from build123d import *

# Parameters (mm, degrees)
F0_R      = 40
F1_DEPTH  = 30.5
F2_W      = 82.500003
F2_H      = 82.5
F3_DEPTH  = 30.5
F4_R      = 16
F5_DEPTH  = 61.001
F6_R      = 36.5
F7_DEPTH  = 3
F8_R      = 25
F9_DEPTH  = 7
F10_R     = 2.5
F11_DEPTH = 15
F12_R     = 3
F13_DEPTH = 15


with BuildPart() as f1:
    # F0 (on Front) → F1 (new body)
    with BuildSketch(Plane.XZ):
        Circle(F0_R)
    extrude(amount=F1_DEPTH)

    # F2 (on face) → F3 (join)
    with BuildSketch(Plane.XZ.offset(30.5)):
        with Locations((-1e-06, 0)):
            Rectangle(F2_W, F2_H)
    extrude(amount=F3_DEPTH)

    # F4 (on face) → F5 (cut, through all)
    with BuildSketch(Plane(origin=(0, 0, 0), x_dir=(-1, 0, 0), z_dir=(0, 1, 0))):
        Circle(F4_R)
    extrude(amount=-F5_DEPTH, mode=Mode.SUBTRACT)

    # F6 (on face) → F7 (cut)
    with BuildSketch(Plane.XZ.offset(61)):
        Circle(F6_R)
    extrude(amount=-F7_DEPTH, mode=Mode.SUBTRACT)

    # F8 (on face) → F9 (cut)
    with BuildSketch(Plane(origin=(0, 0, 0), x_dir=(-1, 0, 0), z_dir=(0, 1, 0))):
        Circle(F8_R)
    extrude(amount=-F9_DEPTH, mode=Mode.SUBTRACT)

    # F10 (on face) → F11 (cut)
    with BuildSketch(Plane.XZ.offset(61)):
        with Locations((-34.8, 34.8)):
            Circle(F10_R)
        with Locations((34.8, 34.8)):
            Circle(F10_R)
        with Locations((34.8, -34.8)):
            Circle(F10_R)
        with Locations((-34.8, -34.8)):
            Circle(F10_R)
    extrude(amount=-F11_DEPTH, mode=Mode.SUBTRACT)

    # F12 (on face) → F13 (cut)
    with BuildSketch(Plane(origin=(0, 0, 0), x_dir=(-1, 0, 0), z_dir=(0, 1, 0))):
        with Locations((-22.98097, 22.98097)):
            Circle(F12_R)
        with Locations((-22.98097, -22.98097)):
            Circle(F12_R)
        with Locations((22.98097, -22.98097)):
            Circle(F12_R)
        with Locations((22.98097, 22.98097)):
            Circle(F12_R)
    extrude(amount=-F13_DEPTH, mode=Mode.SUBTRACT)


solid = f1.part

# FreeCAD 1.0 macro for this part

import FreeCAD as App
import Part
import Sketcher
from FreeCAD import Vector
Q = App.Units.Quantity

doc = App.newDocument("Part")
body = doc.addObject("PartDesign::Body", "Body")

sketch1 = body.newObject("Sketcher::SketchObject", "Sketch")
sketch1.AttachmentSupport = (doc.getObject("XZ_Plane"), [""])
sketch1.MapMode = "FlatFace"
sketch1.addGeometry(Part.Circle(Vector(0, 0, 0), Vector(0, 0, 1), 40), False)
sketch1.addConstraint([
    Sketcher.Constraint("Coincident", 0, 3, -1, 1),
    Sketcher.Constraint("Diameter", 0, Q("80 mm")),
])
pad1 = body.newObject("PartDesign::Pad", "Pad")
pad1.Profile = sketch1
pad1.Length = 30.5

sketch2 = body.newObject("Sketcher::SketchObject", "Sketch001")
sketch2.AttachmentSupport = (doc.getObject("XZ_Plane"), [""])
sketch2.MapMode = "FlatFace"
sketch2.AttachmentOffset = App.Placement(Vector(0, 0, 30.5), App.Rotation())
sketch2.addGeometry([
    Part.LineSegment(Vector(-41, 41, 0), Vector(-41, -41, 0)),
    Part.LineSegment(Vector(-41, -41, 0), Vector(41, -41, 0)),
    Part.LineSegment(Vector(41, -41, 0), Vector(41, 41, 0)),
    Part.LineSegment(Vector(41, 41, 0), Vector(-41, 41, 0)),
], False)
sketch2.addConstraint([
    Sketcher.Constraint("Coincident", 0, 2, 1, 1),
    Sketcher.Constraint("Coincident", 1, 2, 2, 1),
    Sketcher.Constraint("Coincident", 2, 2, 3, 1),
    Sketcher.Constraint("Coincident", 3, 2, 0, 1),
    Sketcher.Constraint("Vertical", 0),
    Sketcher.Constraint("Horizontal", 1),
    Sketcher.Constraint("Vertical", 2),
    Sketcher.Constraint("Horizontal", 3),
    Sketcher.Constraint("Symmetric", 0, 2, 2, 2, -1, 1),
    Sketcher.Constraint("DistanceY", 0, 2, 0, 1, Q("82.5 mm")),
    Sketcher.Constraint("DistanceX", 0, 2, -1, 1, Q("41.250002 mm")),
])
pad2 = body.newObject("PartDesign::Pad", "Pad001")
pad2.Profile = sketch2
pad2.Length = 30.5

sketch3 = body.newObject("Sketcher::SketchObject", "Sketch002")
sketch3.AttachmentSupport = (doc.getObject("XZ_Plane"), [""])
sketch3.MapMode = "FlatFace"
sketch3.addGeometry(Part.Circle(Vector(0, 0, 0), Vector(0, 0, 1), 16), False)
sketch3.addConstraint([
    Sketcher.Constraint("Coincident", 0, 3, -1, 1),
    Sketcher.Constraint("Diameter", 0, Q("32 mm")),
])
pocket1 = body.newObject("PartDesign::Pocket", "Pocket")
pocket1.Profile = sketch3
pocket1.Type = "ThroughAll"
pocket1.Reversed = True

sketch4 = body.newObject("Sketcher::SketchObject", "Sketch003")
sketch4.AttachmentSupport = (doc.getObject("XZ_Plane"), [""])
sketch4.MapMode = "FlatFace"
sketch4.AttachmentOffset = App.Placement(Vector(0, 0, 61), App.Rotation())
sketch4.addGeometry(Part.Circle(Vector(0, 0, 0), Vector(0, 0, 1), 36), False)
sketch4.addConstraint([
    Sketcher.Constraint("Coincident", 0, 3, -1, 1),
    Sketcher.Constraint("Diameter", 0, Q("73 mm")),
])
pocket2 = body.newObject("PartDesign::Pocket", "Pocket001")
pocket2.Profile = sketch4
pocket2.Length = 3

sketch5 = body.newObject("Sketcher::SketchObject", "Sketch004")
sketch5.AttachmentSupport = (doc.getObject("XZ_Plane"), [""])
sketch5.MapMode = "FlatFace"
sketch5.addGeometry(Part.Circle(Vector(0, 0, 0), Vector(0, 0, 1), 25), False)
sketch5.addConstraint([
    Sketcher.Constraint("Coincident", 0, 3, -1, 1),
    Sketcher.Constraint("Diameter", 0, Q("50 mm")),
])
pocket3 = body.newObject("PartDesign::Pocket", "Pocket002")
pocket3.Profile = sketch5
pocket3.Length = 7
pocket3.Reversed = True

sketch6 = body.newObject("Sketcher::SketchObject", "Sketch005")
sketch6.AttachmentSupport = (doc.getObject("XZ_Plane"), [""])
sketch6.MapMode = "FlatFace"
sketch6.AttachmentOffset = App.Placement(Vector(0, 0, 61), App.Rotation())
sketch6.addGeometry([
    Part.Circle(Vector(-34.8, 34.8, 0), Vector(0, 0, 1), 2.5),
    Part.Circle(Vector(34.8, 34.8, 0), Vector(0, 0, 1), 2.5),
    Part.Circle(Vector(34.8, -34.8, 0), Vector(0, 0, 1), 2.5),
    Part.Circle(Vector(-34.8, -34.8, 0), Vector(0, 0, 1), 2.5),
], False)
sketch6.addConstraint([
    Sketcher.Constraint("Equal", 0, 1),
    Sketcher.Constraint("Equal", 1, 2),
    Sketcher.Constraint("Equal", 2, 3),
    Sketcher.Constraint("Symmetric", 0, 3, 2, 3, -1, 1),
    Sketcher.Constraint("Symmetric", 1, 3, 3, 3, -1, 1),
    Sketcher.Constraint("Symmetric", 0, 3, 1, 3, -2),
    Sketcher.Constraint("Diameter", 0, Q("5 mm")),
    Sketcher.Constraint("DistanceX", 0, 3, -1, 1, Q("34.8 mm")),
    Sketcher.Constraint("DistanceY", -1, 1, 0, 3, Q("34.8 mm")),
])
pocket4 = body.newObject("PartDesign::Pocket", "Pocket003")
pocket4.Profile = sketch6
pocket4.Length = 15

sketch7 = body.newObject("Sketcher::SketchObject", "Sketch006")
sketch7.AttachmentSupport = (doc.getObject("XZ_Plane"), [""])
sketch7.MapMode = "FlatFace"
sketch7.addGeometry([
    Part.Circle(Vector(23, 23, 0), Vector(0, 0, 1), 3),
    Part.Circle(Vector(23, -23, 0), Vector(0, 0, 1), 3),
    Part.Circle(Vector(-23, -23, 0), Vector(0, 0, 1), 3),
    Part.Circle(Vector(-23, 23, 0), Vector(0, 0, 1), 3),
], False)
sketch7.addConstraint([
    Sketcher.Constraint("Equal", 0, 1),
    Sketcher.Constraint("Equal", 1, 2),
    Sketcher.Constraint("Equal", 2, 3),
    Sketcher.Constraint("Symmetric", 0, 3, 2, 3, -1, 1),
    Sketcher.Constraint("Symmetric", 1, 3, 3, 3, -1, 1),
    Sketcher.Constraint("Symmetric", 1, 3, 2, 3, -2),
    Sketcher.Constraint("Diameter", 0, Q("6 mm")),
    Sketcher.Constraint("DistanceX", -1, 1, 0, 3, Q("22.98097 mm")),
    Sketcher.Constraint("DistanceY", -1, 1, 0, 3, Q("22.98097 mm")),
])
pocket5 = body.newObject("PartDesign::Pocket", "Pocket004")
pocket5.Profile = sketch7
pocket5.Length = 15
pocket5.Reversed = True

doc.recompute()
